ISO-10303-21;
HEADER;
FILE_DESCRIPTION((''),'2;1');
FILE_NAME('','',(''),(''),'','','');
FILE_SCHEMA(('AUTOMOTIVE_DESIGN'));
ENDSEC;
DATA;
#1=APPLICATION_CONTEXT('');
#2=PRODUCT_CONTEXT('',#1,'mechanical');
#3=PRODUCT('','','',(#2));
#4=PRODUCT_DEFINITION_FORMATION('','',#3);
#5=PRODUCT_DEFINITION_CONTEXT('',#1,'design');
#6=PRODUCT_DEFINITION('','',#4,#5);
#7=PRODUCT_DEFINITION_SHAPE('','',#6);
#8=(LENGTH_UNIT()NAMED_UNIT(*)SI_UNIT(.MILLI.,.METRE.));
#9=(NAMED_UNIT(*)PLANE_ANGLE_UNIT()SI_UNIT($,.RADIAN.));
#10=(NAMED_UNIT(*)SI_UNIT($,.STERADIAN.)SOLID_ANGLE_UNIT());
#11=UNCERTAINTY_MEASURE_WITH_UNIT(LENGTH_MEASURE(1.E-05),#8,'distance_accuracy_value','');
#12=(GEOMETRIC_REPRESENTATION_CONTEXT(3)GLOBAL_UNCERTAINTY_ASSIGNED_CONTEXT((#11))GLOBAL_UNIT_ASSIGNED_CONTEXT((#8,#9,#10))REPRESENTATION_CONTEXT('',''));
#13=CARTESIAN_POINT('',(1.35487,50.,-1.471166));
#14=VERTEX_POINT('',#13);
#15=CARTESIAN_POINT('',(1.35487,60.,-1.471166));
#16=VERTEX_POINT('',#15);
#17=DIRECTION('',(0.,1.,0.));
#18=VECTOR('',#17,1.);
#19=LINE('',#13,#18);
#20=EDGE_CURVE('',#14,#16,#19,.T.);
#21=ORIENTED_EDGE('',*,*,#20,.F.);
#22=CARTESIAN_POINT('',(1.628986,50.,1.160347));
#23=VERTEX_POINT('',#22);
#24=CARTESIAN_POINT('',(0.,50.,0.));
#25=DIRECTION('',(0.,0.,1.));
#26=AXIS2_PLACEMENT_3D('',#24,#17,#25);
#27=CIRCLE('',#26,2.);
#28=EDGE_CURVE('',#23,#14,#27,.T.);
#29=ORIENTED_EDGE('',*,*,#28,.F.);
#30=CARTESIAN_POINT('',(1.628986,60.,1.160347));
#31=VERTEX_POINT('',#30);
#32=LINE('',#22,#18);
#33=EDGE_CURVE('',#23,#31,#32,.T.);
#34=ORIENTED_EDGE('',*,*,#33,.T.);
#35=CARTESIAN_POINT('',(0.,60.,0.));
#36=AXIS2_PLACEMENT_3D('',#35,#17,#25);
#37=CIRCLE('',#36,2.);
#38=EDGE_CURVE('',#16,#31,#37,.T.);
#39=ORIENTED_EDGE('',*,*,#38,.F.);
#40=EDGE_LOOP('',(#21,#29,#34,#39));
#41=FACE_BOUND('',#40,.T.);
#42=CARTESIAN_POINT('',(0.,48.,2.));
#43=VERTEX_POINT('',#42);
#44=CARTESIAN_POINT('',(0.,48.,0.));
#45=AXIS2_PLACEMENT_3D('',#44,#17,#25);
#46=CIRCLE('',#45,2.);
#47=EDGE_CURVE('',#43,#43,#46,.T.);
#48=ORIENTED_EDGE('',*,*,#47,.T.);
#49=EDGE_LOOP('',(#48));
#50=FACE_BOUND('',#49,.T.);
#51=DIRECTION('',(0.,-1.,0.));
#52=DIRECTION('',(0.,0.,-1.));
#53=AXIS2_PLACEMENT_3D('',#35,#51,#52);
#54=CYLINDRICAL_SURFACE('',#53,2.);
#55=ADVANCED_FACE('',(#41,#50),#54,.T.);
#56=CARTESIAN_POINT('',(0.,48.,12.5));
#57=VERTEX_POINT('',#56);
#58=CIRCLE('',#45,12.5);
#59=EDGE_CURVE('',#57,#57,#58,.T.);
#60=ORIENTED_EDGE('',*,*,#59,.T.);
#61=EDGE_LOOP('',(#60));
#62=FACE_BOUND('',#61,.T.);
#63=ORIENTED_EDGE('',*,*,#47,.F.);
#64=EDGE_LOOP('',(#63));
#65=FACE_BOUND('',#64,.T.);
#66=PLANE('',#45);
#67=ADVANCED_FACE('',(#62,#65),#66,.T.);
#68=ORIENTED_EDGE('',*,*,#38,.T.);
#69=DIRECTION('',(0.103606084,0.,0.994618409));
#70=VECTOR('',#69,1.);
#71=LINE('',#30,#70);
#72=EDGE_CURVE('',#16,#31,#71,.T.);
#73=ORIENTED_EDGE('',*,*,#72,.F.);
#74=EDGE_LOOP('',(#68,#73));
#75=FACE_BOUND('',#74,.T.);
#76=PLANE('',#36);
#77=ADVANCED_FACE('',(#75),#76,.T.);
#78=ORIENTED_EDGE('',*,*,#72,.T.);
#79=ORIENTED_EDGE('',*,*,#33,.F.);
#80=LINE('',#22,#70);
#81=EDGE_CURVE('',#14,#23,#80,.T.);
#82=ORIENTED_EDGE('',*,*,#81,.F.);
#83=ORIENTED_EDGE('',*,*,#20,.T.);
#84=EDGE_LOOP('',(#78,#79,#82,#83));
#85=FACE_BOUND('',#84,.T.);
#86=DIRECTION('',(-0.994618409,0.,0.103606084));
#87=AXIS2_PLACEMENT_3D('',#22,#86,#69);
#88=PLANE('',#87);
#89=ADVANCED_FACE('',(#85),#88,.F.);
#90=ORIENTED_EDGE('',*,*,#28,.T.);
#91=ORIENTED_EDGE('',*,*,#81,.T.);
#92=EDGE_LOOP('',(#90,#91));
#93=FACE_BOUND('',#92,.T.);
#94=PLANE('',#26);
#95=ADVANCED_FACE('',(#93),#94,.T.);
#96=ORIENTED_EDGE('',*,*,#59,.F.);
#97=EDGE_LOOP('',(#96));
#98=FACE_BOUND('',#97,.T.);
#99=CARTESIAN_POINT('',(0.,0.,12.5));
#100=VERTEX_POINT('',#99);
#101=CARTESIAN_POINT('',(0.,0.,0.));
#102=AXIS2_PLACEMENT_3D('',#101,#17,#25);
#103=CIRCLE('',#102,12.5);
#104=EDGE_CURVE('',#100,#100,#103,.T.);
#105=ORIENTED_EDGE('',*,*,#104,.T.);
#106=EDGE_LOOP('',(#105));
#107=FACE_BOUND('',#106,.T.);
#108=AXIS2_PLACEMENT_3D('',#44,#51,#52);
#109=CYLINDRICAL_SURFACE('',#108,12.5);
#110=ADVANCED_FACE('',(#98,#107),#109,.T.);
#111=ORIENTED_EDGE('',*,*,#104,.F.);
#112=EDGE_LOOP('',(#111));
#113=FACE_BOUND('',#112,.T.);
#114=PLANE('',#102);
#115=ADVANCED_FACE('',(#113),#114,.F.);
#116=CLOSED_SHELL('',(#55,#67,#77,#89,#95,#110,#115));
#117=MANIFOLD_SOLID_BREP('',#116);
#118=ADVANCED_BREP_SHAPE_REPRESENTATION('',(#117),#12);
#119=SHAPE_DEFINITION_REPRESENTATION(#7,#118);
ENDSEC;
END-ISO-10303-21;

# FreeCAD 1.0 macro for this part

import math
import FreeCAD as App
import Part
import Sketcher
from FreeCAD import Vector

doc = App.newDocument("Part")
body = doc.addObject("PartDesign::Body", "Body")

# Sketch on XZ plane
sketch1 = body.newObject("Sketcher::SketchObject", "Sketch")
sketch1.AttachmentSupport = (doc.getObject("XZ_Plane"), [""])
sketch1.MapMode = "FlatFace"
sketch1.addGeometry(Part.Circle(Vector(0, 0, 0), Vector(0, 0, 1), 12), False)
sketch1.addConstraint(Sketcher.Constraint("Coincident", 0, 3, -1, 1))
sketch1.addConstraint(Sketcher.Constraint("Diameter", 0, 25.0))
pad1 = body.newObject("PartDesign::Pad", "Pad")
pad1.Profile = sketch1
pad1.Length = 48
pad1.Reversed = True

# Sketch on XZ plane
sketch2 = body.newObject("Sketcher::SketchObject", "Sketch001")
sketch2.AttachmentSupport = (doc.getObject("XZ_Plane"), [""])
sketch2.MapMode = "FlatFace"
sketch2.AttachmentOffset = App.Placement(Vector(0, 0, -48), App.Rotation())
sketch2.addGeometry(Part.Circle(Vector(0, 0, 0), Vector(0, 0, 1), 2), False)
sketch2.addConstraint(Sketcher.Constraint("Coincident", 0, 3, -1, 1))
sketch2.addConstraint(Sketcher.Constraint("Diameter", 0, 4.0))
pad2 = body.newObject("PartDesign::Pad", "Pad001")
pad2.Profile = sketch2
pad2.Length = 12
pad2.Reversed = True

# Sketch on XZ plane
sketch3 = body.newObject("Sketcher::SketchObject", "Sketch002")
sketch3.AttachmentSupport = (doc.getObject("XZ_Plane"), [""])
sketch3.MapMode = "FlatFace"
sketch3.AttachmentOffset = App.Placement(Vector(0, 0, -50), App.Rotation())
sketch3.addGeometry(Part.LineSegment(Vector(1.4, -1.5, 0), Vector(1.6, 1.2, 0)), False)
sketch3.addGeometry(Part.ArcOfCircle(Part.Circle(Vector(0, 0, 0), Vector(0, 0, 1), 2), math.radians(-47), math.radians(35)), False)
sketch3.addConstraint(Sketcher.Constraint("Coincident", 0, 1, 1, 1))
sketch3.addConstraint(Sketcher.Constraint("Coincident", 1, 2, 0, 2))
sketch3.addConstraint(Sketcher.Constraint("Coincident", 1, 3, -1, 1))
sketch3.addConstraint(Sketcher.Constraint("Radius", 1, 2.0))
sketch3.addConstraint(Sketcher.Constraint("Distance", 0, 2.645751))
sketch3.addConstraint(Sketcher.Constraint("DistanceX", -1, 1, 0, 1, 1.35487))
pocket1 = body.newObject("PartDesign::Pocket", "Pocket")
pocket1.Profile = sketch3
pocket1.Length = 10

doc.recompute()
